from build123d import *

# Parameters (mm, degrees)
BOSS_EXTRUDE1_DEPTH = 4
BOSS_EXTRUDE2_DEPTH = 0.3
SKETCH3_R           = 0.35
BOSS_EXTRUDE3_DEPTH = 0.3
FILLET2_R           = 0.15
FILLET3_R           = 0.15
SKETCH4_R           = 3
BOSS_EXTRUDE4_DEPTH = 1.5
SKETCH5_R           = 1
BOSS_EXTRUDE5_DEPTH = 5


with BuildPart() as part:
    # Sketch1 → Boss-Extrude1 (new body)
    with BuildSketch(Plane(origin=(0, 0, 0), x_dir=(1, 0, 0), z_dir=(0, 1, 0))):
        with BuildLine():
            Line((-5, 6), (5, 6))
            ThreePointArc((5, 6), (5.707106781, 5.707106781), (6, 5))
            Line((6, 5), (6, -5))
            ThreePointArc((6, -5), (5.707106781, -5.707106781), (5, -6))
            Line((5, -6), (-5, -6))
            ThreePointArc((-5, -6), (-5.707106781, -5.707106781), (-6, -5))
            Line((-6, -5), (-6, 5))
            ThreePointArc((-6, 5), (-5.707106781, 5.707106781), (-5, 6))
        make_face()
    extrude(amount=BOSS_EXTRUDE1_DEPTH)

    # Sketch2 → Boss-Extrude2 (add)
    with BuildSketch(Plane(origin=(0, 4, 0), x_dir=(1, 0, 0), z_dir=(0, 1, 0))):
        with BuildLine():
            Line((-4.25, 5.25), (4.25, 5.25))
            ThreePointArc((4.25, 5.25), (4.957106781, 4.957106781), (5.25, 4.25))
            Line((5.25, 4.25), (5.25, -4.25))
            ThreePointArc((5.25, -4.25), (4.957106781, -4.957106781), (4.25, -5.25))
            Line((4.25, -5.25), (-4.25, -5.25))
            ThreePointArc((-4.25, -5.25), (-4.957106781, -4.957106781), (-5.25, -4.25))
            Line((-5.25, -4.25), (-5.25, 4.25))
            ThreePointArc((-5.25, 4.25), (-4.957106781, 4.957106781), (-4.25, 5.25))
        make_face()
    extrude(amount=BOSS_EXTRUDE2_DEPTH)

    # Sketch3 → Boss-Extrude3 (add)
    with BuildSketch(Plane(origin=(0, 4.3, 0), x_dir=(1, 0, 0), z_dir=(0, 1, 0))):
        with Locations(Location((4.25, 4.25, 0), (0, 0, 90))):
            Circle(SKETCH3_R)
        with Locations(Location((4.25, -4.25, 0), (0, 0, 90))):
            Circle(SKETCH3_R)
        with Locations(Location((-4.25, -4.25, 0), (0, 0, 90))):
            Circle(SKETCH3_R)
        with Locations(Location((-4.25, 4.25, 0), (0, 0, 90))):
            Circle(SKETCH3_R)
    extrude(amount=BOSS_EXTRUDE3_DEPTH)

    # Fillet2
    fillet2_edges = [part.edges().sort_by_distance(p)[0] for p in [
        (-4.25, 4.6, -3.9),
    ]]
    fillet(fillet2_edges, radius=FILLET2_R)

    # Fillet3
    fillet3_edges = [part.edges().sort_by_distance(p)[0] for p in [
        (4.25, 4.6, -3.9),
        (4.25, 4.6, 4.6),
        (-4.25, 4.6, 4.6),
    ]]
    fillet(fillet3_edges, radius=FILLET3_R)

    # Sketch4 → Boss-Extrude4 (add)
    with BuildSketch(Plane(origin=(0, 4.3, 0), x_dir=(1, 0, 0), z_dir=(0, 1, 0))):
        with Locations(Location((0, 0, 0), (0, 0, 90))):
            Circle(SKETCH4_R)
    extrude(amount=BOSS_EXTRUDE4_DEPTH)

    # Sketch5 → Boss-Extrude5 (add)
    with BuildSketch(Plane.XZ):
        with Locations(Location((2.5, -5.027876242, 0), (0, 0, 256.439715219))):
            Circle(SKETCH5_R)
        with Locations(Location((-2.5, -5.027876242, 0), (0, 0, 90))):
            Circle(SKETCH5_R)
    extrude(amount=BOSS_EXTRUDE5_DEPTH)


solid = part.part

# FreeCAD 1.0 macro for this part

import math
import FreeCAD as App
import Part
import Sketcher
from FreeCAD import Vector


def edges_at(feature, points):
    """Names of the edges that pass closest to the given points."""
    edges = feature.Shape.Edges
    near = lambda p: min(range(len(edges)), key=lambda i: edges[i].distToShape(Part.Vertex(*p))[0])
    return sorted({f"Edge{near(p) + 1}" for p in points})

doc = App.newDocument("Part")
body = doc.addObject("PartDesign::Body", "Body")

sketch1 = body.newObject("Sketcher::SketchObject", "Sketch")
sketch1.AttachmentSupport = (doc.getObject("XZ_Plane"), [""])
sketch1.MapMode = "FlatFace"
sketch1.addGeometry([
    Part.LineSegment(Vector(5, -6, 0), Vector(-5, -6, 0)),
    Part.ArcOfCircle(Part.Circle(Vector(-5, -5, 0), Vector(0, 0, 1), 1), math.radians(-180), math.radians(-90)),
    Part.LineSegment(Vector(-6, -5, 0), Vector(-6, 5, 0)),
    Part.ArcOfCircle(Part.Circle(Vector(-5, 5, 0), Vector(0, 0, 1), 1), math.radians(90), math.radians(180)),
    Part.LineSegment(Vector(-5, 6, 0), Vector(5, 6, 0)),
    Part.ArcOfCircle(Part.Circle(Vector(5, 5, 0), Vector(0, 0, 1), 1), math.radians(0), math.radians(90)),
    Part.LineSegment(Vector(6, 5, 0), Vector(6, -5, 0)),
    Part.ArcOfCircle(Part.Circle(Vector(5, -5, 0), Vector(0, 0, 1), 1), math.radians(-90), math.radians(0)),
], False)
sketch1.addConstraint([
    Sketcher.Constraint("Tangent", 0, 2, 1, 2),
    Sketcher.Constraint("Tangent", 1, 1, 2, 1),
    Sketcher.Constraint("Tangent", 2, 2, 3, 2),
    Sketcher.Constraint("Tangent", 3, 1, 4, 1),
    Sketcher.Constraint("Tangent", 4, 2, 5, 2),
    Sketcher.Constraint("Tangent", 5, 1, 6, 1),
    Sketcher.Constraint("Tangent", 6, 2, 7, 2),
    Sketcher.Constraint("Tangent", 7, 1, 0, 1),
    Sketcher.Constraint("Horizontal", 0),
    Sketcher.Constraint("Vertical", 2),
    Sketcher.Constraint("Horizontal", 4),
    Sketcher.Constraint("Vertical", 6),
    Sketcher.Constraint("Equal", 1, 3),
    Sketcher.Constraint("Equal", 3, 5),
    Sketcher.Constraint("Equal", 5, 7),
    Sketcher.Constraint("Symmetric", 1, 3, 5, 3, -1, 1),
    Sketcher.Constraint("Equal", 4, 2),
    Sketcher.Constraint("Radius", 1, 1.0),
    Sketcher.Constraint("DistanceX", 0, 2, 0, 1, 10.0),
])
pad1 = body.newObject("PartDesign::Pad", "Pad")
pad1.Profile = sketch1
pad1.Length = 4
pad1.Reversed = True

sketch2 = body.newObject("Sketcher::SketchObject", "Sketch001")
sketch2.AttachmentSupport = (doc.getObject("XZ_Plane"), [""])
sketch2.MapMode = "FlatFace"
sketch2.AttachmentOffset = App.Placement(Vector(0, 0, -4), App.Rotation())
sketch2.addGeometry([
    Part.LineSegment(Vector(4.2, -5.2, 0), Vector(-4.2, -5.2, 0)),
    Part.ArcOfCircle(Part.Circle(Vector(-4.2, -4.2, 0), Vector(0, 0, 1), 1), math.radians(-180), math.radians(-90)),
    Part.LineSegment(Vector(-5.2, -4.2, 0), Vector(-5.2, 4.2, 0)),
    Part.ArcOfCircle(Part.Circle(Vector(-4.2, 4.2, 0), Vector(0, 0, 1), 1), math.radians(90), math.radians(180)),
    Part.LineSegment(Vector(-4.2, 5.2, 0), Vector(4.2, 5.2, 0)),
    Part.ArcOfCircle(Part.Circle(Vector(4.2, 4.2, 0), Vector(0, 0, 1), 1), math.radians(0), math.radians(90)),
    Part.LineSegment(Vector(5.2, 4.2, 0), Vector(5.2, -4.2, 0)),
    Part.ArcOfCircle(Part.Circle(Vector(4.2, -4.2, 0), Vector(0, 0, 1), 1), math.radians(-90), math.radians(0)),
], False)
sketch2.addConstraint([
    Sketcher.Constraint("Tangent", 0, 2, 1, 2),
    Sketcher.Constraint("Tangent", 1, 1, 2, 1),
    Sketcher.Constraint("Tangent", 2, 2, 3, 2),
    Sketcher.Constraint("Tangent", 3, 1, 4, 1),
    Sketcher.Constraint("Tangent", 4, 2, 5, 2),
    Sketcher.Constraint("Tangent", 5, 1, 6, 1),
    Sketcher.Constraint("Tangent", 6, 2, 7, 2),
    Sketcher.Constraint("Tangent", 7, 1, 0, 1),
    Sketcher.Constraint("Horizontal", 0),
    Sketcher.Constraint("Vertical", 2),
    Sketcher.Constraint("Horizontal", 4),
    Sketcher.Constraint("Vertical", 6),
    Sketcher.Constraint("Equal", 1, 3),
    Sketcher.Constraint("Equal", 3, 5),
    Sketcher.Constraint("Equal", 5, 7),
    Sketcher.Constraint("Symmetric", 1, 3, 5, 3, -1, 1),
    Sketcher.Constraint("Equal", 4, 2),
    Sketcher.Constraint("Radius", 1, 1.0),
    Sketcher.Constraint("DistanceX", 0, 2, 0, 1, 8.5),
])
pad2 = body.newObject("PartDesign::Pad", "Pad001")
pad2.Profile = sketch2
pad2.Length = 0.3
pad2.Reversed = True

sketch3 = body.newObject("Sketcher::SketchObject", "Sketch002")
sketch3.AttachmentSupport = (doc.getObject("XZ_Plane"), [""])
sketch3.MapMode = "FlatFace"
sketch3.AttachmentOffset = App.Placement(Vector(0, 0, -4.3), App.Rotation())
sketch3.addGeometry([
    Part.Circle(Vector(4.25, -4.25, 0), Vector(0, 0, 1), 0.35),
    Part.Circle(Vector(4.25, 4.25, 0), Vector(0, 0, 1), 0.35),
    Part.Circle(Vector(-4.25, 4.25, 0), Vector(0, 0, 1), 0.35),
    Part.Circle(Vector(-4.25, -4.25, 0), Vector(0, 0, 1), 0.35),
], False)
sketch3.addConstraint([
    Sketcher.Constraint("Equal", 0, 1),
    Sketcher.Constraint("Equal", 1, 2),
    Sketcher.Constraint("Equal", 2, 3),
    Sketcher.Constraint("Symmetric", 0, 3, 2, 3, -1, 1),
    Sketcher.Constraint("Symmetric", 1, 3, 3, 3, -1, 1),
    Sketcher.Constraint("Symmetric", 1, 3, 2, 3, -2),
    Sketcher.Constraint("Diameter", 0, 0.7),
    Sketcher.Constraint("DistanceY", 0, 3, 1, 3, 8.5),
    Sketcher.Constraint("DistanceX", 2, 3, 1, 3, 8.5),
])
pad3 = body.newObject("PartDesign::Pad", "Pad002")
pad3.Profile = sketch3
pad3.Length = 0.3
pad3.Reversed = True
doc.recompute()

fillet = body.newObject("PartDesign::Fillet", "Fillet")
fillet.Base = (pad3, edges_at(pad3, [(-4.25, 4.6, -3.9)]))
fillet.Radius = 0.15
doc.recompute()

fillet2 = body.newObject("PartDesign::Fillet", "Fillet001")
fillet2.Base = (fillet, edges_at(fillet, [(4.25, 4.6, -3.9), (4.25, 4.6, 4.6), (-4.25, 4.6, 4.6)]))
fillet2.Radius = 0.15

sketch4 = body.newObject("Sketcher::SketchObject", "Sketch003")
sketch4.AttachmentSupport = (doc.getObject("XZ_Plane"), [""])
sketch4.MapMode = "FlatFace"
sketch4.AttachmentOffset = App.Placement(Vector(0, 0, -4.3), App.Rotation())
sketch4.addGeometry(Part.Circle(Vector(0, 0, 0), Vector(0, 0, 1), 3), False)
sketch4.addConstraint([
    Sketcher.Constraint("Coincident", 0, 3, -1, 1),
    Sketcher.Constraint("Diameter", 0, 6.0),
])
pad4 = body.newObject("PartDesign::Pad", "Pad003")
pad4.Profile = sketch4
pad4.Length = 1.5
pad4.Reversed = True

sketch5 = body.newObject("Sketcher::SketchObject", "Sketch004")
sketch5.AttachmentSupport = (doc.getObject("XZ_Plane"), [""])
sketch5.MapMode = "FlatFace"
sketch5.addGeometry([
    Part.Circle(Vector(2.5, -5, 0), Vector(0, 0, 1), 1),
    Part.Circle(Vector(-2.5, -5, 0), Vector(0, 0, 1), 1),
], False)
sketch5.addConstraint([
    Sketcher.Constraint("Equal", 0, 1),
    Sketcher.Constraint("Symmetric", 0, 3, 1, 3, -2),
    Sketcher.Constraint("Diameter", 0, 2.0),
    Sketcher.Constraint("DistanceX", 1, 3, 0, 3, 5.0),
    Sketcher.Constraint("DistanceY", 0, 3, -1, 1, 5.027876),
])
pad5 = body.newObject("PartDesign::Pad", "Pad004")
pad5.Profile = sketch5
pad5.Length = 5

doc.recompute()
